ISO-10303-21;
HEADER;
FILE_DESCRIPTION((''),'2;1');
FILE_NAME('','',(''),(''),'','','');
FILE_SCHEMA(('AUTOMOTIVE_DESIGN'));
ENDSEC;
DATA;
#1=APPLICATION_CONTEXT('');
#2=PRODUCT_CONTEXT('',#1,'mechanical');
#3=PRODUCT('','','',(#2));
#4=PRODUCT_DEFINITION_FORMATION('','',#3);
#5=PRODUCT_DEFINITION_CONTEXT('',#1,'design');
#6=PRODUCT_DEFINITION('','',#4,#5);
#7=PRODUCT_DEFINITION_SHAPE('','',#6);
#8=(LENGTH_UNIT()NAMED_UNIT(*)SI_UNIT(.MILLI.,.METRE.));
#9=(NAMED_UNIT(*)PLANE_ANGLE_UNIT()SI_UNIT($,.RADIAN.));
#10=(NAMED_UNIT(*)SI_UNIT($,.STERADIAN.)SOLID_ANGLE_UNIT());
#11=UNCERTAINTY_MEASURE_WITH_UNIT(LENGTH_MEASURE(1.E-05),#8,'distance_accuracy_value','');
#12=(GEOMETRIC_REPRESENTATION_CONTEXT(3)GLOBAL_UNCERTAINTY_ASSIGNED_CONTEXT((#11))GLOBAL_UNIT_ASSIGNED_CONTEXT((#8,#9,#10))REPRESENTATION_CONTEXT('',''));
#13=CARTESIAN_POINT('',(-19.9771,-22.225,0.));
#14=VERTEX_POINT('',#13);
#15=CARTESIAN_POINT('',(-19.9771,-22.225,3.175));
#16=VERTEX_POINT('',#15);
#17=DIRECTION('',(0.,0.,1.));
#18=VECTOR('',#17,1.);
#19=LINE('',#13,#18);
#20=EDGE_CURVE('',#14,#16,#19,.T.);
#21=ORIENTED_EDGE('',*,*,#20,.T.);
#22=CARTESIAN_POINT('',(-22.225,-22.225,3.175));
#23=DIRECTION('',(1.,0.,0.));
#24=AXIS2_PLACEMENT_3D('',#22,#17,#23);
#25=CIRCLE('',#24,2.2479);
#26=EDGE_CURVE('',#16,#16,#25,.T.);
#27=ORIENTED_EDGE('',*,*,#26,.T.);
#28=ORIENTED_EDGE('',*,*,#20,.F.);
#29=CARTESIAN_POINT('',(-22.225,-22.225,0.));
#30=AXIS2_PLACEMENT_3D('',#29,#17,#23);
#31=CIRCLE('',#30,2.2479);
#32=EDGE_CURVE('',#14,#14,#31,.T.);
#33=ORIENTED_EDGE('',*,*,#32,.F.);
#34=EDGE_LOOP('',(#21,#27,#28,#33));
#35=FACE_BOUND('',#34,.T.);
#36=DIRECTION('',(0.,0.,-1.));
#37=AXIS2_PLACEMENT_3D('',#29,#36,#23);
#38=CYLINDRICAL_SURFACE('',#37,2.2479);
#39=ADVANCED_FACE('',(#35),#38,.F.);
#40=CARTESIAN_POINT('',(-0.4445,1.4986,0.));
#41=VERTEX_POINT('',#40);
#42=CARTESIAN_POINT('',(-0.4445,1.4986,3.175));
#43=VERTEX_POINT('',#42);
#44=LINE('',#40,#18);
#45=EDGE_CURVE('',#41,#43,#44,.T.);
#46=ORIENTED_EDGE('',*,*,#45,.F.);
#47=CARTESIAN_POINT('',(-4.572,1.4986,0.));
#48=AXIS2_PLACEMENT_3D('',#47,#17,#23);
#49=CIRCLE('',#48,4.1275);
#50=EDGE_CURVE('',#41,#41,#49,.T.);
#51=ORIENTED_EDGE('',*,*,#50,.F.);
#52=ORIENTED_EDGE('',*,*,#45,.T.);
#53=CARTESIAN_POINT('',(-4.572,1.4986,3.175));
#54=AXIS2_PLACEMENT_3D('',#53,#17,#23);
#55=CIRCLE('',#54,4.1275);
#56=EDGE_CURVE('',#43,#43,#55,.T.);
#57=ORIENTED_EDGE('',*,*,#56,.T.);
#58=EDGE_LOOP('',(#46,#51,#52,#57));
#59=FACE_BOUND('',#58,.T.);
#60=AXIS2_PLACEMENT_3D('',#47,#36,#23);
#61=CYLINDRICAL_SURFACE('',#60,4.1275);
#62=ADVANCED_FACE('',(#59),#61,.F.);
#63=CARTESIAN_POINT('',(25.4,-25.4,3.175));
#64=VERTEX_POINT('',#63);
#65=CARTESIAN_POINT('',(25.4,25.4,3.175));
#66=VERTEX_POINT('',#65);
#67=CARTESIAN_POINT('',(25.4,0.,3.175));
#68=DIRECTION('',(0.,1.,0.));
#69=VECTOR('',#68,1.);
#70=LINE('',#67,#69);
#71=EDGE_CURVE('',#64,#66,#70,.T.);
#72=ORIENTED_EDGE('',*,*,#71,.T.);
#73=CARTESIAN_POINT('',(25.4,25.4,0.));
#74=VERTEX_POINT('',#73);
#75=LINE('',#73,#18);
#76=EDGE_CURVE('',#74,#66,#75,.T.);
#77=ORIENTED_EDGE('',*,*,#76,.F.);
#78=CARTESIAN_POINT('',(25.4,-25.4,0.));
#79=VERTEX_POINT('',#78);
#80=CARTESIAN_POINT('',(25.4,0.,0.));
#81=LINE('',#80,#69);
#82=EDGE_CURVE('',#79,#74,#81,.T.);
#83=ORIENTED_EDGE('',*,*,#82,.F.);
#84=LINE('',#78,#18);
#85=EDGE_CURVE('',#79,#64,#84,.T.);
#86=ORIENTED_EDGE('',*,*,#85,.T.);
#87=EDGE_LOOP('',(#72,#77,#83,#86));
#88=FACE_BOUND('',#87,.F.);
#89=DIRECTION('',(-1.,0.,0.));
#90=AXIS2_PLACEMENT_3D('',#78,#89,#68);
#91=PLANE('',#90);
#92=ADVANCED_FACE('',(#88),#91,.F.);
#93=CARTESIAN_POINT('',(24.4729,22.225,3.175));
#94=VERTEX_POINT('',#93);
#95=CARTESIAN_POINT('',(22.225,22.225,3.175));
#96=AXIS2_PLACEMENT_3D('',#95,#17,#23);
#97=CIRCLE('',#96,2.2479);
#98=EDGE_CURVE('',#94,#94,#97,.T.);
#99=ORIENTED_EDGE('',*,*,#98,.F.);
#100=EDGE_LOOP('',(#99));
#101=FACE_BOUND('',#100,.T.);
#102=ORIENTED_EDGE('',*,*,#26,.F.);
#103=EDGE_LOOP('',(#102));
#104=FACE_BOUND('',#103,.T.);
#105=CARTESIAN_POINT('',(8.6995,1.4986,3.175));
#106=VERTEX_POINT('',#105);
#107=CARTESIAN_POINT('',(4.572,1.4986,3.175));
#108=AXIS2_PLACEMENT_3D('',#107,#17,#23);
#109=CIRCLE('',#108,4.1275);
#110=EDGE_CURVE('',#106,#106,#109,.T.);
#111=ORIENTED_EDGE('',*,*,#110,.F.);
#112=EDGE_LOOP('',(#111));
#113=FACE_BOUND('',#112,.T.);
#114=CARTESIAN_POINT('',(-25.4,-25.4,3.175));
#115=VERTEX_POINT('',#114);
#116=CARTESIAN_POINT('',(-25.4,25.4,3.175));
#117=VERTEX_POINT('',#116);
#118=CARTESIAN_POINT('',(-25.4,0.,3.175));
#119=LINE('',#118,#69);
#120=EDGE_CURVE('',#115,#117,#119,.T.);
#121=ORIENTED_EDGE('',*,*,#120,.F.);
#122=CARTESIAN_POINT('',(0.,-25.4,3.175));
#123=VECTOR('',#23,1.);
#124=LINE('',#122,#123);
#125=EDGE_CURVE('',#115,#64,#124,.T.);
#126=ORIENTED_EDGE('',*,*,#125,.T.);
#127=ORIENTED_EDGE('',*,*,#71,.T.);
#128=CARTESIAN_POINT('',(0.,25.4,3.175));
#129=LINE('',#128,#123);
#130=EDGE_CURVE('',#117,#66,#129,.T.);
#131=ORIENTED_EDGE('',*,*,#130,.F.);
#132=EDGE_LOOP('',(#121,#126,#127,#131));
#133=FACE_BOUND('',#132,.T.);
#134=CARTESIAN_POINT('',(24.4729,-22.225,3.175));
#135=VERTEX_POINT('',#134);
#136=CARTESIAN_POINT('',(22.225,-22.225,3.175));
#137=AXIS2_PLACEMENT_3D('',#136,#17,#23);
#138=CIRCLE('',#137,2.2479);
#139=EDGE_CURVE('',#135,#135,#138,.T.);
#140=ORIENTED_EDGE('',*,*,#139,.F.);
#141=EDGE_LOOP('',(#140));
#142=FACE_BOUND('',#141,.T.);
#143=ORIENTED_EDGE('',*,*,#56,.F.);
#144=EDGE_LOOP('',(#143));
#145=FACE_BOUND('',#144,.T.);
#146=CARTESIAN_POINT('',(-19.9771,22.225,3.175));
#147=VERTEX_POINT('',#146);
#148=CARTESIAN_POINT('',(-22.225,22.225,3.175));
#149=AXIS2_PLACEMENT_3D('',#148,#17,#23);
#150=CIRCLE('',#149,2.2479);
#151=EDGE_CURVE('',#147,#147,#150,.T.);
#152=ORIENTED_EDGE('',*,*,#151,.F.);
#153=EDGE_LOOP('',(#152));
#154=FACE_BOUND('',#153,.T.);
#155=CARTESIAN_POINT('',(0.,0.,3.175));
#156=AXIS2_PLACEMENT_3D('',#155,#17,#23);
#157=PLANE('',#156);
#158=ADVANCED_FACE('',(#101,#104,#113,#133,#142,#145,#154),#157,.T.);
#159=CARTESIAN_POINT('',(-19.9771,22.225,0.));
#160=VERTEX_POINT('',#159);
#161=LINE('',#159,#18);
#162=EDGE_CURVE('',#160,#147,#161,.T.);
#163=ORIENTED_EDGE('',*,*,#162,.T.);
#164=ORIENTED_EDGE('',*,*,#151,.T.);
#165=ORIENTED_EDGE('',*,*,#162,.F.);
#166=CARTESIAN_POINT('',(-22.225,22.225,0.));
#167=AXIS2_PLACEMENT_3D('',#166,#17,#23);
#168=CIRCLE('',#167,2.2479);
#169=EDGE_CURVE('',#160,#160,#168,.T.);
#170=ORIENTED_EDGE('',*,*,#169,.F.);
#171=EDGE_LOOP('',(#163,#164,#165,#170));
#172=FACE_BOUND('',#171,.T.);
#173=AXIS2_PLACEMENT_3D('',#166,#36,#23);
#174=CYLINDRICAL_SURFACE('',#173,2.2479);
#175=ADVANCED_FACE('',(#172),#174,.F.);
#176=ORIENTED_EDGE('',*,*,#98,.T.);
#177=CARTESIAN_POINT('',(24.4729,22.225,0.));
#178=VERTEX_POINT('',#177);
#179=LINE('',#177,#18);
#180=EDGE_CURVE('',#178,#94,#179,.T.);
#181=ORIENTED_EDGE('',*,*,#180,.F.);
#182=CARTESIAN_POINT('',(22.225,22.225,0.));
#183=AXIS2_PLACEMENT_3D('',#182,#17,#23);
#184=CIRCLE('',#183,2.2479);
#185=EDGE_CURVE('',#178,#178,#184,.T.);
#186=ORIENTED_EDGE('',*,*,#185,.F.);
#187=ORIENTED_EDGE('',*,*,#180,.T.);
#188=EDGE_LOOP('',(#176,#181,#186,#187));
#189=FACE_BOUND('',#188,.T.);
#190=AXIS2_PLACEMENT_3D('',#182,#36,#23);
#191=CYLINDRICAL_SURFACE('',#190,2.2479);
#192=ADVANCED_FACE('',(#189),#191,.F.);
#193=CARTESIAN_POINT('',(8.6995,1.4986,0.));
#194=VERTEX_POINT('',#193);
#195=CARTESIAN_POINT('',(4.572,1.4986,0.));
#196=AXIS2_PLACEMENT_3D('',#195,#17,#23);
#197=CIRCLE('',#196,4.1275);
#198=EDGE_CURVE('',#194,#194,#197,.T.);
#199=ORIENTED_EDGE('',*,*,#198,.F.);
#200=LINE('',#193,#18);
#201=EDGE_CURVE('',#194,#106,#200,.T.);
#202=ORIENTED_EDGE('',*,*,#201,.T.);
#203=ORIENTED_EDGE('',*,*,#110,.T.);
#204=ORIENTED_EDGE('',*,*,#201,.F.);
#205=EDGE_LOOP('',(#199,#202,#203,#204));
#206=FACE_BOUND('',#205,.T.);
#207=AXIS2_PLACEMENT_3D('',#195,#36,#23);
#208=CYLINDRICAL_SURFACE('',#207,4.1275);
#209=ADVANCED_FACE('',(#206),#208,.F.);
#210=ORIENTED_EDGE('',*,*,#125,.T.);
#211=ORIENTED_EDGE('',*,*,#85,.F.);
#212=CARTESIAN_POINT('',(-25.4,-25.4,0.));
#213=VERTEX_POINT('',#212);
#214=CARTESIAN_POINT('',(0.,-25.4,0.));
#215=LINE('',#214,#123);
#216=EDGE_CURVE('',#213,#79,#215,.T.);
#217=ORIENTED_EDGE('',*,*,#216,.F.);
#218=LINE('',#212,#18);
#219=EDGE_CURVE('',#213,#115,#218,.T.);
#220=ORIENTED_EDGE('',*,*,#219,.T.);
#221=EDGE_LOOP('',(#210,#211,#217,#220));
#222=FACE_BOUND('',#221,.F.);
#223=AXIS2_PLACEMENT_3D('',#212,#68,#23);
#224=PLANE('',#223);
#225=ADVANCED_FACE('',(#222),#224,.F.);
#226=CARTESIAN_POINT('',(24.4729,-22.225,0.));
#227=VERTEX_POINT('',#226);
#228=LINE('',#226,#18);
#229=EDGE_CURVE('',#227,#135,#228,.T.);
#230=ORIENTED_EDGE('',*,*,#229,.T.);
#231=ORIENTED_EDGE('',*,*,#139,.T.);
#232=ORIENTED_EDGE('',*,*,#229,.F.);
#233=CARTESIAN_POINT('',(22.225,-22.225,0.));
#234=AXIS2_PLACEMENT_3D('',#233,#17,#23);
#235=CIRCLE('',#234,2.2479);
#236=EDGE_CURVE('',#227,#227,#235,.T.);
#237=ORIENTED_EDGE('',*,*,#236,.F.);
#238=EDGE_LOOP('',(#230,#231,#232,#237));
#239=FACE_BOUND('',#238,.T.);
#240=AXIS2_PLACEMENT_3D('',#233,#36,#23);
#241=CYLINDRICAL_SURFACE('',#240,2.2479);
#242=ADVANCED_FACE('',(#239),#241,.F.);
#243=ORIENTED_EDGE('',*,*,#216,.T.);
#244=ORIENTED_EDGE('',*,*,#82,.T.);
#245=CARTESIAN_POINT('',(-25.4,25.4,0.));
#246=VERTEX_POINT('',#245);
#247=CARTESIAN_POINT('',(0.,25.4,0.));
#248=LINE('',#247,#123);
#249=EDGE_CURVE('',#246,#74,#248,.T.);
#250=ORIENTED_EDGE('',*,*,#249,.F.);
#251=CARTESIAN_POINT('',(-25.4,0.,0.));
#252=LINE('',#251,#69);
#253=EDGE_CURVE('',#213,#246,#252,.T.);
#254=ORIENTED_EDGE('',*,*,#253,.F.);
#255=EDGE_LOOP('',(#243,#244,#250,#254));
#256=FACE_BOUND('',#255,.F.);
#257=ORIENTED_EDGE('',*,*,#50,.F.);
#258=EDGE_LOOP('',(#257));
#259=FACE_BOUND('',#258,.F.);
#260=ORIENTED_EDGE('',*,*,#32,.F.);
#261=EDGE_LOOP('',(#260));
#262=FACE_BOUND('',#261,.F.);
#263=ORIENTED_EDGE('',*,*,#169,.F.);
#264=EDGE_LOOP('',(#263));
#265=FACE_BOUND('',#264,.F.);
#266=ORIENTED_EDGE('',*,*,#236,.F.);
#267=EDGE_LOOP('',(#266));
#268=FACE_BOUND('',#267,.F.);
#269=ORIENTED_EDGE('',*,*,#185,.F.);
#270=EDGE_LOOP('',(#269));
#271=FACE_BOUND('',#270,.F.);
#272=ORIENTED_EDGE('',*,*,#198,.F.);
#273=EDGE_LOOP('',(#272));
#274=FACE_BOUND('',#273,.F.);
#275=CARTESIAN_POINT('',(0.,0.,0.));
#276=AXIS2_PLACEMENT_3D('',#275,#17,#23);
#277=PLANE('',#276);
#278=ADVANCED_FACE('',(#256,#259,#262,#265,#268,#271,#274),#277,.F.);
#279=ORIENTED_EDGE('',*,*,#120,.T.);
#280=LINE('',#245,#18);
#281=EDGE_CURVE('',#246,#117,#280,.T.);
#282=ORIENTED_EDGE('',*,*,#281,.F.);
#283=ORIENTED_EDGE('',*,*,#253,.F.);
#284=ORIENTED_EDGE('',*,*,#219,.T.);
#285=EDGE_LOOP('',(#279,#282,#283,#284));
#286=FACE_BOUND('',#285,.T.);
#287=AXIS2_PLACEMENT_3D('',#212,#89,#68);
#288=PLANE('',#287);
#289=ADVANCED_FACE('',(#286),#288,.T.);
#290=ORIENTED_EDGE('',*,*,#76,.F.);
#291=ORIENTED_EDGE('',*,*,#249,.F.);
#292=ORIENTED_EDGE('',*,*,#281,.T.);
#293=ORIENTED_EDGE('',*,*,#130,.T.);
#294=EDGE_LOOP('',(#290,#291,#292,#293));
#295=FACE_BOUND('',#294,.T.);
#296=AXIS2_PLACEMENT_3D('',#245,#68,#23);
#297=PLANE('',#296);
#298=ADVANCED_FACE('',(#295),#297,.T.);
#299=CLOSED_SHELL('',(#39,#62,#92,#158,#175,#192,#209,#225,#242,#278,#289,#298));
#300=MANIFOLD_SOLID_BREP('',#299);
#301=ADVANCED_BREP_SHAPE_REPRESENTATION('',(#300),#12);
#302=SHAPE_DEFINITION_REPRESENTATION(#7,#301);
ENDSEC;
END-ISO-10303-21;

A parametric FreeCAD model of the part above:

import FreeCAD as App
import Part
import Sketcher
from FreeCAD import Vector
Q = App.Units.Quantity


def add_polygon(sketch, points):
    """Adds a closed chain of lines whose ends are joined by coincident constraints."""
    first, n = sketch.GeometryCount, len(points)
    for a, b in zip(points, points[1:] + points[:1]):
        sketch.addGeometry(Part.LineSegment(App.Vector(*a, 0), App.Vector(*b, 0)), False)
    for i in range(n):
        sketch.addConstraint(Sketcher.Constraint("Coincident", first + i, 2, first + (i + 1) % n, 1))

doc = App.newDocument("Part")
body = doc.addObject("PartDesign::Body", "Body")

# Sketch on XY plane
sketch1 = body.newObject("Sketcher::SketchObject", "Sketch")
sketch1.AttachmentSupport = (doc.getObject("XY_Plane"), [""])
sketch1.MapMode = "FlatFace"
add_polygon(sketch1, [(-25.4, 25.4), (-25.4, -25.4), (25.4, -25.4), (25.4, 25.4)])  # lines 0-3
sketch1.addGeometry(Part.Circle(Vector(-22.2, -22.2, 0), Vector(0, 0, 1), 2.2), False)  # 4
sketch1.addGeometry(Part.Circle(Vector(22.2, -22.2, 0), Vector(0, 0, 1), 2.2), False)  # 5
sketch1.addGeometry(Part.Circle(Vector(-4.6, 1.5, 0), Vector(0, 0, 1), 4.1), False)  # 6
sketch1.addGeometry(Part.Circle(Vector(-22.2, 22.2, 0), Vector(0, 0, 1), 2.2), False)  # 7
sketch1.addGeometry(Part.Circle(Vector(4.6, 1.5, 0), Vector(0, 0, 1), 4.1), False)  # 8
sketch1.addGeometry(Part.Circle(Vector(22.2, 22.2, 0), Vector(0, 0, 1), 2.2), False)  # 9
sketch1.addConstraint([
    Sketcher.Constraint("Vertical", 0),
    Sketcher.Constraint("Horizontal", 1),
    Sketcher.Constraint("Vertical", 2),
    Sketcher.Constraint("Horizontal", 3),
    Sketcher.Constraint("Equal", 4, 5),
    Sketcher.Constraint("Equal", 5, 7),
    Sketcher.Constraint("Equal", 6, 8),
    Sketcher.Constraint("Equal", 7, 9),
    Sketcher.Constraint("Symmetric", 5, 3, 7, 3, -1, 1),
    Sketcher.Constraint("Symmetric", 4, 3, 9, 3, -1, 1),
    Sketcher.Constraint("Symmetric", 0, 2, 2, 2, -1, 1),
    Sketcher.Constraint("Symmetric", 4, 3, 5, 3, -2),
    Sketcher.Constraint("Symmetric", 6, 3, 8, 3, -2),
    Sketcher.Constraint("Equal", 3, 0),
    Sketcher.Constraint("DistanceX", 1, 1, 1, 2, Q("2 in")),
    Sketcher.Constraint("Diameter", 4, Q("0.177 in")),
    Sketcher.Constraint("Diameter", 6, Q("0.325 in")),
    Sketcher.Constraint("DistanceX", 6, 3, -1, 1, Q("0.18 in")),
    Sketcher.Constraint("DistanceX", 4, 3, 5, 3, Q("1.75 in")),
    Sketcher.Constraint("DistanceY", 4, 3, 7, 3, Q("1.75 in")),
    Sketcher.Constraint("DistanceY", -1, 1, 6, 3, Q("0.059 in")),
])
pad1 = body.newObject("PartDesign::Pad", "Pad")
pad1.Profile = sketch1
pad1.Length = Q("0.125 in")

doc.recompute()
